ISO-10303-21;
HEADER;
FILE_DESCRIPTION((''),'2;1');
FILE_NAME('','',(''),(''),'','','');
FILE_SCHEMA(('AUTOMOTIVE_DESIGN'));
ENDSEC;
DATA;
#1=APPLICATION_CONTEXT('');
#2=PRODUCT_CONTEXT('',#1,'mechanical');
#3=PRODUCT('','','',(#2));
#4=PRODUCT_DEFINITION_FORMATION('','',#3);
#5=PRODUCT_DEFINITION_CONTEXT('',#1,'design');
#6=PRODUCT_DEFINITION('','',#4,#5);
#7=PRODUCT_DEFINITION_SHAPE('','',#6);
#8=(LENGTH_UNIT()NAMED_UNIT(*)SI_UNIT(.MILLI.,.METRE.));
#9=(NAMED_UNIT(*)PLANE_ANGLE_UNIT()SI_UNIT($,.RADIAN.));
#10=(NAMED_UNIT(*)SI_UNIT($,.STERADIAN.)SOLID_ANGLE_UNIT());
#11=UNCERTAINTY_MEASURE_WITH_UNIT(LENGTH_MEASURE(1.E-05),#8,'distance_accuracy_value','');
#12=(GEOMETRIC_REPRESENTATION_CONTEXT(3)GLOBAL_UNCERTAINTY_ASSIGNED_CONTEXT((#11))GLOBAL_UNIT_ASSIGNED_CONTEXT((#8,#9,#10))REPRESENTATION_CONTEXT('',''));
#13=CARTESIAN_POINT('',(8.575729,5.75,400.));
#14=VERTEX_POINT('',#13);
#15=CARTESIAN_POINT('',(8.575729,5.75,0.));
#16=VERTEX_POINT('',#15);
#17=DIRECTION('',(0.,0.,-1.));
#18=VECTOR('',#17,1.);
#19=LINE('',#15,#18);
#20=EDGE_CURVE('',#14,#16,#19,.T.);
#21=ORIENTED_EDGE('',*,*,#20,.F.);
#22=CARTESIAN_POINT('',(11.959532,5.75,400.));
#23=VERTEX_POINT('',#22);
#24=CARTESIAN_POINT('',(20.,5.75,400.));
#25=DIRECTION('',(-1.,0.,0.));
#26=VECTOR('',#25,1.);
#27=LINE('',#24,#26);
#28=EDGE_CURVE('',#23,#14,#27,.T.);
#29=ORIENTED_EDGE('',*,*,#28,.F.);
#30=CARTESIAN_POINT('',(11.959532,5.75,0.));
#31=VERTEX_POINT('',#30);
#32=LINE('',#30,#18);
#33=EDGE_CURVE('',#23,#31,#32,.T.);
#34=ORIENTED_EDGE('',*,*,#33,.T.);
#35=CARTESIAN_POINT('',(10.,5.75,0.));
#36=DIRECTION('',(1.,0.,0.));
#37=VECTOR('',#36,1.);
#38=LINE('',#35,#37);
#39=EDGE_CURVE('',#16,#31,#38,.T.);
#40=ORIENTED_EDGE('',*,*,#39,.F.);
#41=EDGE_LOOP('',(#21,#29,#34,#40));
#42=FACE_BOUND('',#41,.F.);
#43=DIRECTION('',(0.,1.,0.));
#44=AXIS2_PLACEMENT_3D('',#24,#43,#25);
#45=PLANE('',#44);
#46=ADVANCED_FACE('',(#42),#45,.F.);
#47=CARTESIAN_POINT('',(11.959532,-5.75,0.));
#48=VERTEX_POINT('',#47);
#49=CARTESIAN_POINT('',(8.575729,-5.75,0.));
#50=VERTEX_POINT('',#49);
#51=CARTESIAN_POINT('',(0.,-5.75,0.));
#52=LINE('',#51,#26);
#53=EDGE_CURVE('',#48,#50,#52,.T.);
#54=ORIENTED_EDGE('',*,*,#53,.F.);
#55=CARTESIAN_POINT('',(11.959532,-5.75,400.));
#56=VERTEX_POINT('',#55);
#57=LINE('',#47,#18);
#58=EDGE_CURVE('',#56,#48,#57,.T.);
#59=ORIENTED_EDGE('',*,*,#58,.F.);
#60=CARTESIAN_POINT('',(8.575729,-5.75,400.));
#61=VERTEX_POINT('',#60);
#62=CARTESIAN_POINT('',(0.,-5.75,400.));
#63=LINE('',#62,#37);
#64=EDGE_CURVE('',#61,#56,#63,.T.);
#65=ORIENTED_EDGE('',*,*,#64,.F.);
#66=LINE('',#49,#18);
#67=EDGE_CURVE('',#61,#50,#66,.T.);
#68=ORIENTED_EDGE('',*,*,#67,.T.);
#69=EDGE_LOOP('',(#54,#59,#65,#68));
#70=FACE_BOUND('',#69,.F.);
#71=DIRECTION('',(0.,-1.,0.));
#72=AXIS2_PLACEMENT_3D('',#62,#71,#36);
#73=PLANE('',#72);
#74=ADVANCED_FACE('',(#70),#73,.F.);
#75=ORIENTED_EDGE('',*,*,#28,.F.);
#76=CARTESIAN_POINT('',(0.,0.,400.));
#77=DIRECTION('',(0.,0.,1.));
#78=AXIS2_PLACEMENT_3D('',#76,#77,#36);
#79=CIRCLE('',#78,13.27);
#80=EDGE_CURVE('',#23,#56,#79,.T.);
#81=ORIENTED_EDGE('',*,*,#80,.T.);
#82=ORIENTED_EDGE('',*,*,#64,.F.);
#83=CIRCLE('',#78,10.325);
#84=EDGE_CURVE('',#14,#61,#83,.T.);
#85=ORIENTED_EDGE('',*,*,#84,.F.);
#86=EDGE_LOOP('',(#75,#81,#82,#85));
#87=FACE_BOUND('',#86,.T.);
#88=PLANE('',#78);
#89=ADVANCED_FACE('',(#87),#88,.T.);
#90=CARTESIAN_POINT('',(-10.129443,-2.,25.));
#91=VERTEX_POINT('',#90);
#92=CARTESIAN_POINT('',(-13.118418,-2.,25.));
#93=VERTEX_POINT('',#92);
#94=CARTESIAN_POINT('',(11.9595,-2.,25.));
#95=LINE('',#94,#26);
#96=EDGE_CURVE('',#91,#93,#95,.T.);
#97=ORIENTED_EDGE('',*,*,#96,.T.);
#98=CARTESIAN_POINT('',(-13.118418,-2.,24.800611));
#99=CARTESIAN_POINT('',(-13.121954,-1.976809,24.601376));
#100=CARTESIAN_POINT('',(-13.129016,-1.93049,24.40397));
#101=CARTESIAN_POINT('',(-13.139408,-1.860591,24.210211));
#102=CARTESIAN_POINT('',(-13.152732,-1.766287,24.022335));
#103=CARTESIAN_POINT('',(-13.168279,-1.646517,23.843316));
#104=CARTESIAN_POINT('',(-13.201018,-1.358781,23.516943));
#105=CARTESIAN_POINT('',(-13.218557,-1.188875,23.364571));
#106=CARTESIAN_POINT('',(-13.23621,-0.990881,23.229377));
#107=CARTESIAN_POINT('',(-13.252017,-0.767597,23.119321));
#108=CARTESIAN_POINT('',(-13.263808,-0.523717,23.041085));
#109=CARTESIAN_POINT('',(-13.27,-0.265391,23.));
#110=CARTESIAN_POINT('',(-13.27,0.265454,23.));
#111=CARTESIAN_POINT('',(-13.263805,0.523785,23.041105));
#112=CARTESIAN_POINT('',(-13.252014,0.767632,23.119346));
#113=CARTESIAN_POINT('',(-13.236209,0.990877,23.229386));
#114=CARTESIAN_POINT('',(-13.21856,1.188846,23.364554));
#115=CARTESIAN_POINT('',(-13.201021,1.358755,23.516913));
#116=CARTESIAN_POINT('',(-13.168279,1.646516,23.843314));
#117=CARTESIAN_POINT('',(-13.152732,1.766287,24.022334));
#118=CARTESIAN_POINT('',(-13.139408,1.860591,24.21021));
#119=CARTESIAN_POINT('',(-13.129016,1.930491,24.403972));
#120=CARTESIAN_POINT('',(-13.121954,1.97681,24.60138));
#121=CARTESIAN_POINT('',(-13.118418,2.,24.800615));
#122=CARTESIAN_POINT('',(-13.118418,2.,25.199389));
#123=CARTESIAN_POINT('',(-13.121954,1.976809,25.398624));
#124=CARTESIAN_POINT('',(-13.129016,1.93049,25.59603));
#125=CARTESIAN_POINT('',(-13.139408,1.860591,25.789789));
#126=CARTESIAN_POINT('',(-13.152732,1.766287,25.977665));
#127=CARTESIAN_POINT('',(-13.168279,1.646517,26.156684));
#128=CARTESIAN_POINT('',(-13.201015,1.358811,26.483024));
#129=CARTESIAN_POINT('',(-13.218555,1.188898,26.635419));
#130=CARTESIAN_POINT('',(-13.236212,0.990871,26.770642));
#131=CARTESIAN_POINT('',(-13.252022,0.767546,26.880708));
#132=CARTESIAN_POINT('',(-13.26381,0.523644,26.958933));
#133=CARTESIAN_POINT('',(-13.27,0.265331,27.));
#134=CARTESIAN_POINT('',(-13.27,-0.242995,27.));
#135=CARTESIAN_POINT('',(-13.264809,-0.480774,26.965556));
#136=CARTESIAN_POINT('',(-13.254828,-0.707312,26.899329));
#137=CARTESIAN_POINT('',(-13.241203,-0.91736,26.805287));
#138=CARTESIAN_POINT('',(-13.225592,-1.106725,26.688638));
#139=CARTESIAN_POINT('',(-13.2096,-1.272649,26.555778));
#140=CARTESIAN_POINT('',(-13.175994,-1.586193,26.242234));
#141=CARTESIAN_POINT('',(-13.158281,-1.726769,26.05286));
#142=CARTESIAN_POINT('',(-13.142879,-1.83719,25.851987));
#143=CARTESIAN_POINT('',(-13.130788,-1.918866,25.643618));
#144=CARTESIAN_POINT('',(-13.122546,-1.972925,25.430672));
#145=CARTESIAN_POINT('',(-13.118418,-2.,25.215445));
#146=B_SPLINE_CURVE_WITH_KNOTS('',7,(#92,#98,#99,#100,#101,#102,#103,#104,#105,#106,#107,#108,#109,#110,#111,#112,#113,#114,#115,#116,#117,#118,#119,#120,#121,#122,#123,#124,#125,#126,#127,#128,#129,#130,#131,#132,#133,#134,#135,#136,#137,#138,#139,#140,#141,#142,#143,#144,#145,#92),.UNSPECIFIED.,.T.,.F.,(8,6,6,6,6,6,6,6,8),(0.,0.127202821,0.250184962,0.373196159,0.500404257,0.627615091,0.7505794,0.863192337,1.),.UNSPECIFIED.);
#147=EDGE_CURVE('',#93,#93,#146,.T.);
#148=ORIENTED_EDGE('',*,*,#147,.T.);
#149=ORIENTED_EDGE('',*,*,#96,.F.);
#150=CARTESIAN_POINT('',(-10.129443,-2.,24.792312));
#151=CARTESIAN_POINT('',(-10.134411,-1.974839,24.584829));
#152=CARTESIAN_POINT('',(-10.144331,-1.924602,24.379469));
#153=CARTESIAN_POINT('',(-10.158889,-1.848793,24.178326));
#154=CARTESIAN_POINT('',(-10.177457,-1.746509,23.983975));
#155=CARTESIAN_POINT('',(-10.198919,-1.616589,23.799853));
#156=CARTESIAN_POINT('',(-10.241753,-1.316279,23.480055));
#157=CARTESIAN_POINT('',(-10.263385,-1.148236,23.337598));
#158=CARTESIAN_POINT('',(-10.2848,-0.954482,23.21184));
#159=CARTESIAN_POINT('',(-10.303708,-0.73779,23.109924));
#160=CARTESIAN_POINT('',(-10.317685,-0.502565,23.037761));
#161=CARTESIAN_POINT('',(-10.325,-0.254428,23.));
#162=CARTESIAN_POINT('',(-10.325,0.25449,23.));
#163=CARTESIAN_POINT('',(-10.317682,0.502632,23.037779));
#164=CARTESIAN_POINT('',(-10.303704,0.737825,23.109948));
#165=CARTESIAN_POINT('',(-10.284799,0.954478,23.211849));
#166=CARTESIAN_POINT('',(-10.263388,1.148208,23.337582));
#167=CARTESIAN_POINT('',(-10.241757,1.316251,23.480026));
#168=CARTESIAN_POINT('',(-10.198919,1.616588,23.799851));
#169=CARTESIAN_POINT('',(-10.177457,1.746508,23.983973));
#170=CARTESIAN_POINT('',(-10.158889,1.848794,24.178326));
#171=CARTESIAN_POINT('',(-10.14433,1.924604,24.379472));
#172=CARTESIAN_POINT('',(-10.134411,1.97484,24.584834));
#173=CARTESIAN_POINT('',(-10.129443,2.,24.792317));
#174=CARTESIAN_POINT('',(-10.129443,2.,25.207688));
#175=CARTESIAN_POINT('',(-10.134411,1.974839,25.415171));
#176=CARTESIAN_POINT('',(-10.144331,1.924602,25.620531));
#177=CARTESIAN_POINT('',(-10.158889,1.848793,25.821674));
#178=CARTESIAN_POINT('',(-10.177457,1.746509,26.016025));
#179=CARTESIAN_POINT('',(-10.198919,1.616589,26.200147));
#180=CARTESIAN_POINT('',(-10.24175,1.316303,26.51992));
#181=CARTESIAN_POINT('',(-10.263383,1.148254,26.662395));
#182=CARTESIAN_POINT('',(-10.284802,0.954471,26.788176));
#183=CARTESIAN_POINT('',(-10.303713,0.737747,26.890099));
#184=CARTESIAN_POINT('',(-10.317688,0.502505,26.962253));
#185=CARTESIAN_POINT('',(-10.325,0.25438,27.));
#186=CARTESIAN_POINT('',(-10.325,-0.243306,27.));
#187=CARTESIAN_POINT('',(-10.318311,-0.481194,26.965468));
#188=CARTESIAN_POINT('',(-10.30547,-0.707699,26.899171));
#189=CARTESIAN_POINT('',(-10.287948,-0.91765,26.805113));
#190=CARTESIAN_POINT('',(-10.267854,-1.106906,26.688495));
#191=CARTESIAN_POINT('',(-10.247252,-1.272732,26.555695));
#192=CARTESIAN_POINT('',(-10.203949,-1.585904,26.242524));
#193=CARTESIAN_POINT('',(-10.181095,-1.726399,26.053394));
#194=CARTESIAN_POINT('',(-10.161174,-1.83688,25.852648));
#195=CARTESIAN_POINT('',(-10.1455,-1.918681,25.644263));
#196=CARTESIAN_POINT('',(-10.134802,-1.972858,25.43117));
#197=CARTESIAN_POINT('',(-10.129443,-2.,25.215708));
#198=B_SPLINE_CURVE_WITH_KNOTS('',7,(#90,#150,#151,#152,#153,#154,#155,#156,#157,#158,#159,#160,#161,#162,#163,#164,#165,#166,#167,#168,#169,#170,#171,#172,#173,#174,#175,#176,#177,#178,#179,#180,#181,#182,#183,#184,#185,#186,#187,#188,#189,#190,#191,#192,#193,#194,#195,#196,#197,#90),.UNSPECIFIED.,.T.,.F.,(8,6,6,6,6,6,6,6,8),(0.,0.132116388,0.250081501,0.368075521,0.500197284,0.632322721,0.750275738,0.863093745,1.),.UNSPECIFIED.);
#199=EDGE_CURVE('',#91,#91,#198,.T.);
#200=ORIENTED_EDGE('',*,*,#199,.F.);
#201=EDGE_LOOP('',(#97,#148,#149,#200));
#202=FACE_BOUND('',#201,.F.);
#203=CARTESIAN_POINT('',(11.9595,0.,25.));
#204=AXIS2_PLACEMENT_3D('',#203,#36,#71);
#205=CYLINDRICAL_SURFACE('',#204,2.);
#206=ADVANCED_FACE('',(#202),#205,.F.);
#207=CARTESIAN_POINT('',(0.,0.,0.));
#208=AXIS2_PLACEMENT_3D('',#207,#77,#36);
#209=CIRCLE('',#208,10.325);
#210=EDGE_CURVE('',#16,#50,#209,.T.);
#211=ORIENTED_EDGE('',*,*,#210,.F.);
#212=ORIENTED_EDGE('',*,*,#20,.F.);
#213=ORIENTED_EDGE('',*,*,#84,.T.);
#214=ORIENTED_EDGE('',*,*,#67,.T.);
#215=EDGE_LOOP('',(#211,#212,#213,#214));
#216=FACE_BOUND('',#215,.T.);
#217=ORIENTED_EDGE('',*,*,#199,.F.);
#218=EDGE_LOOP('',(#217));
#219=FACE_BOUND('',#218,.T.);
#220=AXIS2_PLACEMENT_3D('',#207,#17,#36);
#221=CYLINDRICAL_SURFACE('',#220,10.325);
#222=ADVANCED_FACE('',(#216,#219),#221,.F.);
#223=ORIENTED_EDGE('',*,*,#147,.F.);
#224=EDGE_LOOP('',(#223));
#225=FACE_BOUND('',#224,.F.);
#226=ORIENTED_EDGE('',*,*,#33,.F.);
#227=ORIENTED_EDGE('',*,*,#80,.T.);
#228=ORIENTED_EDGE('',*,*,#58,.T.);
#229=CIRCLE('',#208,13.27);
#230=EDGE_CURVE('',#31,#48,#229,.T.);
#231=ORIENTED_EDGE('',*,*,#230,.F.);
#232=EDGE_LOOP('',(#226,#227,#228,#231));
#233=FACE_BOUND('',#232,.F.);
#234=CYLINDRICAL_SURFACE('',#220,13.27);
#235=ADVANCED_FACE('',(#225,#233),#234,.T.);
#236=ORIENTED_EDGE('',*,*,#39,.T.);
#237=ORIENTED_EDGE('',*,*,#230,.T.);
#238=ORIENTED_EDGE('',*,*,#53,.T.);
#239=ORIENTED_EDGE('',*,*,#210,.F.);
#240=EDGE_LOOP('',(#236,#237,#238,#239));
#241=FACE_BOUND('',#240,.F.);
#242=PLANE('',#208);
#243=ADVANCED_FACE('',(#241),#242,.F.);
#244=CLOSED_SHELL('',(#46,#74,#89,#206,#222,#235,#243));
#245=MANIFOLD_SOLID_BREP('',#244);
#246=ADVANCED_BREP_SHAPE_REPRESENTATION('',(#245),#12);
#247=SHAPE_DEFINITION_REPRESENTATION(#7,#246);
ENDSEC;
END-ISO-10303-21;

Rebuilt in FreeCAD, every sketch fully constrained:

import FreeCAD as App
import Part
import Sketcher
from FreeCAD import Vector

doc = App.newDocument("Part")
body = doc.addObject("PartDesign::Body", "Body")

# Sketch on XY plane
sketch1 = doc.addObject("Sketcher::SketchObject", "Sketch")
body.addObject(sketch1)
sketch1.AttachmentSupport = (doc.XY_Plane, [""])
sketch1.MapMode = "FlatFace"
sketch1.addGeometry([
    Part.Circle(Vector(0, 0, 0), Vector(0, 0, 1), 13),
    Part.Circle(Vector(0, 0, 0), Vector(0, 0, 1), 10),
], False)
sketch1.addConstraint([
    Sketcher.Constraint("Coincident", 0, 3, -1, 1),
    Sketcher.Constraint("Coincident", 1, 3, -1, 1),
    Sketcher.Constraint("Diameter", 0, 26.54),
    Sketcher.Constraint("Diameter", 1, 20.65),
])
pad1 = doc.addObject("PartDesign::Pad", "Pad")
body.addObject(pad1)
pad1.Profile = sketch1
pad1.Length = 400

# Sketch on XY plane
sketch2 = doc.addObject("Sketcher::SketchObject", "Sketch001")
body.addObject(sketch2)
sketch2.AttachmentSupport = (doc.XY_Plane, [""])
sketch2.MapMode = "FlatFace"
sketch2.AttachmentOffset = App.Placement(Vector(0, 0, 400), App.Rotation())
sketch2.addGeometry([
    Part.LineSegment(Vector(0, 6, 0), Vector(0, -6, 0)),
    Part.LineSegment(Vector(0, -6, 0), Vector(20, -6, 0)),
    Part.LineSegment(Vector(20, -6, 0), Vector(20, 6, 0)),
    Part.LineSegment(Vector(20, 6, 0), Vector(0, 6, 0)),
], False)
sketch2.addConstraint([
    Sketcher.Constraint("Coincident", 0, 2, 1, 1),
    Sketcher.Constraint("Coincident", 1, 2, 2, 1),
    Sketcher.Constraint("Coincident", 2, 2, 3, 1),
    Sketcher.Constraint("Coincident", 3, 2, 0, 1),
    Sketcher.Constraint("Vertical", 0),
    Sketcher.Constraint("Horizontal", 1),
    Sketcher.Constraint("Vertical", 2),
    Sketcher.Constraint("Horizontal", 3),
    Sketcher.Constraint("Symmetric", 0, 2, 3, 2, -1, 1),
    Sketcher.Constraint("DistanceX", 1, 1, 1, 2, 20.0),
    Sketcher.Constraint("DistanceY", 0, 2, 0, 1, 11.5),
])
pocket1 = doc.addObject("PartDesign::Pocket", "Pocket")
body.addObject(pocket1)
pocket1.Profile = sketch2
pocket1.Length = 400

# Sketch on YZ plane
sketch3 = doc.addObject("Sketcher::SketchObject", "Sketch002")
body.addObject(sketch3)
sketch3.AttachmentSupport = (doc.YZ_Plane, [""])
sketch3.MapMode = "FlatFace"
sketch3.AttachmentOffset = App.Placement(Vector(0, 0, 11.9595), App.Rotation())
sketch3.addGeometry(Part.Circle(Vector(0, 25, 0), Vector(0, 0, 1), 2), False)
sketch3.addConstraint([
    Sketcher.Constraint("PointOnObject", 0, 3, -2),
    Sketcher.Constraint("Diameter", 0, 4.0),
    Sketcher.Constraint("DistanceY", -1, 1, 0, 3, 25.0),
])
pocket2 = doc.addObject("PartDesign::Pocket", "Pocket001")
body.addObject(pocket2)
pocket2.Profile = sketch3
pocket2.Type = "ThroughAll"

doc.recompute()
